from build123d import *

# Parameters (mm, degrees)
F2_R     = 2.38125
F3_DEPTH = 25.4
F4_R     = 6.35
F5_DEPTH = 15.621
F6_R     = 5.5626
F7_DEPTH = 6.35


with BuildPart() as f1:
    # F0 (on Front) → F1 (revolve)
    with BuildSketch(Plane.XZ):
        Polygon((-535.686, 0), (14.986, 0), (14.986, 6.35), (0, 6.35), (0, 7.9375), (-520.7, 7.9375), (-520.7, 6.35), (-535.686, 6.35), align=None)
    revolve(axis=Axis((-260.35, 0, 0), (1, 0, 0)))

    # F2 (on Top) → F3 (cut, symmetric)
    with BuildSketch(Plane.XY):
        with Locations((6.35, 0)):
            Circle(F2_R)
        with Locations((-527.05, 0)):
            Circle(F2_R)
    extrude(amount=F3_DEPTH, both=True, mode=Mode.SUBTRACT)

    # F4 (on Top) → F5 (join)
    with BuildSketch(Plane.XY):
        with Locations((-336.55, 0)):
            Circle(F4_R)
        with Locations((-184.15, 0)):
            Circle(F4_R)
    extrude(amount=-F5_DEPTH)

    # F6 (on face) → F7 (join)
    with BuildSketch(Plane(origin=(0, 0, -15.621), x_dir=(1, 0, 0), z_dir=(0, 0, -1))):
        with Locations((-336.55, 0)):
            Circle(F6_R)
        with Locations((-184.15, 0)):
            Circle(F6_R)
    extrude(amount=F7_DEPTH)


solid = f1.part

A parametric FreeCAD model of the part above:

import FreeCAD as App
import Part
import Sketcher

V = App.Vector
Q = App.Units.Quantity


def add_polygon(sketch, points):
    """Adds a closed chain of lines whose ends are joined by coincident constraints."""
    first, n = sketch.GeometryCount, len(points)
    for a, b in zip(points, points[1:] + points[:1]):
        sketch.addGeometry(Part.LineSegment(App.Vector(*a, 0), App.Vector(*b, 0)), False)
    for i in range(n):
        sketch.addConstraint(Sketcher.Constraint("Coincident", first + i, 2, first + (i + 1) % n, 1))

doc = App.newDocument("Part")
body = doc.addObject("PartDesign::Body", "Body")

# Sketch on XZ plane
sketch1 = body.newObject("Sketcher::SketchObject", "Sketch")
sketch1.AttachmentSupport = (doc.getObject("XZ_Plane"), [""])
sketch1.MapMode = "FlatFace"
add_polygon(sketch1, [(-535.7, 0), (15, 0), (15, 6.3), (0, 6.3), (0, 7.9), (-520.7, 7.9), (-520.7, 6.3), (-535.7, 6.3)])  # lines 0-7
sketch1.addConstraint([
    Sketcher.Constraint("Horizontal", 0),
    Sketcher.Constraint("Vertical", 1),
    Sketcher.Constraint("Horizontal", 2),
    Sketcher.Constraint("Vertical", 3),
    Sketcher.Constraint("Horizontal", 4),
    Sketcher.Constraint("Vertical", 5),
    Sketcher.Constraint("Horizontal", 6),
    Sketcher.Constraint("Vertical", 7),
    Sketcher.Constraint("PointOnObject", 0, 2, -1),
    Sketcher.Constraint("PointOnObject", 2, 2, -2),
    Sketcher.Constraint("Horizontal", 2, 2, 5, 2),
    Sketcher.Constraint("Equal", 2, 6),
    Sketcher.Constraint("DistanceX", 4, 2, 4, 1, Q("20.5 in")),
    Sketcher.Constraint("DistanceX", 0, 1, 0, 2, Q("21.68 in")),
    Sketcher.Constraint("DistanceY", 1, 1, 1, 2, Q("0.25 in")),
    Sketcher.Constraint("DistanceY", 3, 1, 3, 2, Q("0.0625 in")),
])
revolution = body.newObject("PartDesign::Revolution", "Revolution")
revolution.Profile = sketch1
revolution.ReferenceAxis = (sketch1, ["H_Axis"])
revolution.Angle = 360

# Sketch on XY plane
sketch2 = body.newObject("Sketcher::SketchObject", "Sketch001")
sketch2.AttachmentSupport = (doc.getObject("XY_Plane"), [""])
sketch2.MapMode = "FlatFace"
sketch2.addGeometry([
    Part.Circle(V(6.3, 0, 0), V(0, 0, 1), 2.4),
    Part.Circle(V(-527, 0, 0), V(0, 0, 1), 2.4),
], False)
sketch2.addConstraint([
    Sketcher.Constraint("Equal", 0, 1),
    Sketcher.Constraint("PointOnObject", 0, 3, -1),
    Sketcher.Constraint("PointOnObject", 1, 3, -1),
    Sketcher.Constraint("Diameter", 0, Q("0.1875 in")),
    Sketcher.Constraint("DistanceX", 1, 3, 0, 3, Q("21 in")),
    Sketcher.Constraint("DistanceX", -1, 1, 0, 3, Q("0.25 in")),
])
pocket1 = body.newObject("PartDesign::Pocket", "Pocket")
pocket1.Profile = sketch2
pocket1.Length = Q("2 in")
pocket1.Midplane = True

# Sketch on XY plane
sketch3 = body.newObject("Sketcher::SketchObject", "Sketch002")
sketch3.AttachmentSupport = (doc.getObject("XY_Plane"), [""])
sketch3.MapMode = "FlatFace"
sketch3.addGeometry([
    Part.Circle(V(-337, 0, 0), V(0, 0, 1), 6),
    Part.Circle(V(-184, 0, 0), V(0, 0, 1), 6),
], False)
sketch3.addConstraint([
    Sketcher.Constraint("Equal", 0, 1),
    Sketcher.Constraint("PointOnObject", 0, 3, -1),
    Sketcher.Constraint("PointOnObject", 1, 3, -1),
    Sketcher.Constraint("Diameter", 0, Q("0.5 in")),
    Sketcher.Constraint("DistanceX", 0, 3, 1, 3, Q("6 in")),
    Sketcher.Constraint("DistanceX", 0, 3, -1, 1, Q("13.25 in")),
])
pad1 = body.newObject("PartDesign::Pad", "Pad")
pad1.Profile = sketch3
pad1.Length = Q("0.615 in")
pad1.Reversed = True

# Sketch on XY plane
sketch4 = body.newObject("Sketcher::SketchObject", "Sketch003")
sketch4.AttachmentSupport = (doc.getObject("XY_Plane"), [""])
sketch4.MapMode = "FlatFace"
sketch4.AttachmentOffset = App.Placement(V(0, 0, -0.615 * 25.4), App.Rotation())
sketch4.addGeometry([
    Part.Circle(V(-337, 0, 0), V(0, 0, 1), 6),
    Part.Circle(V(-184, 0, 0), V(0, 0, 1), 6),
], False)
sketch4.addConstraint([
    Sketcher.Constraint("Equal", 0, 1),
    Sketcher.Constraint("PointOnObject", 0, 3, -1),
    Sketcher.Constraint("PointOnObject", 1, 3, -1),
    Sketcher.Constraint("Diameter", 0, Q("0.438 in")),
    Sketcher.Constraint("DistanceX", 0, 3, 1, 3, Q("6 in")),
    Sketcher.Constraint("DistanceX", 0, 3, -1, 1, Q("13.25 in")),
])
pad2 = body.newObject("PartDesign::Pad", "Pad001")
pad2.Profile = sketch4
pad2.Length = Q("0.25 in")
pad2.Reversed = True

doc.recompute()
